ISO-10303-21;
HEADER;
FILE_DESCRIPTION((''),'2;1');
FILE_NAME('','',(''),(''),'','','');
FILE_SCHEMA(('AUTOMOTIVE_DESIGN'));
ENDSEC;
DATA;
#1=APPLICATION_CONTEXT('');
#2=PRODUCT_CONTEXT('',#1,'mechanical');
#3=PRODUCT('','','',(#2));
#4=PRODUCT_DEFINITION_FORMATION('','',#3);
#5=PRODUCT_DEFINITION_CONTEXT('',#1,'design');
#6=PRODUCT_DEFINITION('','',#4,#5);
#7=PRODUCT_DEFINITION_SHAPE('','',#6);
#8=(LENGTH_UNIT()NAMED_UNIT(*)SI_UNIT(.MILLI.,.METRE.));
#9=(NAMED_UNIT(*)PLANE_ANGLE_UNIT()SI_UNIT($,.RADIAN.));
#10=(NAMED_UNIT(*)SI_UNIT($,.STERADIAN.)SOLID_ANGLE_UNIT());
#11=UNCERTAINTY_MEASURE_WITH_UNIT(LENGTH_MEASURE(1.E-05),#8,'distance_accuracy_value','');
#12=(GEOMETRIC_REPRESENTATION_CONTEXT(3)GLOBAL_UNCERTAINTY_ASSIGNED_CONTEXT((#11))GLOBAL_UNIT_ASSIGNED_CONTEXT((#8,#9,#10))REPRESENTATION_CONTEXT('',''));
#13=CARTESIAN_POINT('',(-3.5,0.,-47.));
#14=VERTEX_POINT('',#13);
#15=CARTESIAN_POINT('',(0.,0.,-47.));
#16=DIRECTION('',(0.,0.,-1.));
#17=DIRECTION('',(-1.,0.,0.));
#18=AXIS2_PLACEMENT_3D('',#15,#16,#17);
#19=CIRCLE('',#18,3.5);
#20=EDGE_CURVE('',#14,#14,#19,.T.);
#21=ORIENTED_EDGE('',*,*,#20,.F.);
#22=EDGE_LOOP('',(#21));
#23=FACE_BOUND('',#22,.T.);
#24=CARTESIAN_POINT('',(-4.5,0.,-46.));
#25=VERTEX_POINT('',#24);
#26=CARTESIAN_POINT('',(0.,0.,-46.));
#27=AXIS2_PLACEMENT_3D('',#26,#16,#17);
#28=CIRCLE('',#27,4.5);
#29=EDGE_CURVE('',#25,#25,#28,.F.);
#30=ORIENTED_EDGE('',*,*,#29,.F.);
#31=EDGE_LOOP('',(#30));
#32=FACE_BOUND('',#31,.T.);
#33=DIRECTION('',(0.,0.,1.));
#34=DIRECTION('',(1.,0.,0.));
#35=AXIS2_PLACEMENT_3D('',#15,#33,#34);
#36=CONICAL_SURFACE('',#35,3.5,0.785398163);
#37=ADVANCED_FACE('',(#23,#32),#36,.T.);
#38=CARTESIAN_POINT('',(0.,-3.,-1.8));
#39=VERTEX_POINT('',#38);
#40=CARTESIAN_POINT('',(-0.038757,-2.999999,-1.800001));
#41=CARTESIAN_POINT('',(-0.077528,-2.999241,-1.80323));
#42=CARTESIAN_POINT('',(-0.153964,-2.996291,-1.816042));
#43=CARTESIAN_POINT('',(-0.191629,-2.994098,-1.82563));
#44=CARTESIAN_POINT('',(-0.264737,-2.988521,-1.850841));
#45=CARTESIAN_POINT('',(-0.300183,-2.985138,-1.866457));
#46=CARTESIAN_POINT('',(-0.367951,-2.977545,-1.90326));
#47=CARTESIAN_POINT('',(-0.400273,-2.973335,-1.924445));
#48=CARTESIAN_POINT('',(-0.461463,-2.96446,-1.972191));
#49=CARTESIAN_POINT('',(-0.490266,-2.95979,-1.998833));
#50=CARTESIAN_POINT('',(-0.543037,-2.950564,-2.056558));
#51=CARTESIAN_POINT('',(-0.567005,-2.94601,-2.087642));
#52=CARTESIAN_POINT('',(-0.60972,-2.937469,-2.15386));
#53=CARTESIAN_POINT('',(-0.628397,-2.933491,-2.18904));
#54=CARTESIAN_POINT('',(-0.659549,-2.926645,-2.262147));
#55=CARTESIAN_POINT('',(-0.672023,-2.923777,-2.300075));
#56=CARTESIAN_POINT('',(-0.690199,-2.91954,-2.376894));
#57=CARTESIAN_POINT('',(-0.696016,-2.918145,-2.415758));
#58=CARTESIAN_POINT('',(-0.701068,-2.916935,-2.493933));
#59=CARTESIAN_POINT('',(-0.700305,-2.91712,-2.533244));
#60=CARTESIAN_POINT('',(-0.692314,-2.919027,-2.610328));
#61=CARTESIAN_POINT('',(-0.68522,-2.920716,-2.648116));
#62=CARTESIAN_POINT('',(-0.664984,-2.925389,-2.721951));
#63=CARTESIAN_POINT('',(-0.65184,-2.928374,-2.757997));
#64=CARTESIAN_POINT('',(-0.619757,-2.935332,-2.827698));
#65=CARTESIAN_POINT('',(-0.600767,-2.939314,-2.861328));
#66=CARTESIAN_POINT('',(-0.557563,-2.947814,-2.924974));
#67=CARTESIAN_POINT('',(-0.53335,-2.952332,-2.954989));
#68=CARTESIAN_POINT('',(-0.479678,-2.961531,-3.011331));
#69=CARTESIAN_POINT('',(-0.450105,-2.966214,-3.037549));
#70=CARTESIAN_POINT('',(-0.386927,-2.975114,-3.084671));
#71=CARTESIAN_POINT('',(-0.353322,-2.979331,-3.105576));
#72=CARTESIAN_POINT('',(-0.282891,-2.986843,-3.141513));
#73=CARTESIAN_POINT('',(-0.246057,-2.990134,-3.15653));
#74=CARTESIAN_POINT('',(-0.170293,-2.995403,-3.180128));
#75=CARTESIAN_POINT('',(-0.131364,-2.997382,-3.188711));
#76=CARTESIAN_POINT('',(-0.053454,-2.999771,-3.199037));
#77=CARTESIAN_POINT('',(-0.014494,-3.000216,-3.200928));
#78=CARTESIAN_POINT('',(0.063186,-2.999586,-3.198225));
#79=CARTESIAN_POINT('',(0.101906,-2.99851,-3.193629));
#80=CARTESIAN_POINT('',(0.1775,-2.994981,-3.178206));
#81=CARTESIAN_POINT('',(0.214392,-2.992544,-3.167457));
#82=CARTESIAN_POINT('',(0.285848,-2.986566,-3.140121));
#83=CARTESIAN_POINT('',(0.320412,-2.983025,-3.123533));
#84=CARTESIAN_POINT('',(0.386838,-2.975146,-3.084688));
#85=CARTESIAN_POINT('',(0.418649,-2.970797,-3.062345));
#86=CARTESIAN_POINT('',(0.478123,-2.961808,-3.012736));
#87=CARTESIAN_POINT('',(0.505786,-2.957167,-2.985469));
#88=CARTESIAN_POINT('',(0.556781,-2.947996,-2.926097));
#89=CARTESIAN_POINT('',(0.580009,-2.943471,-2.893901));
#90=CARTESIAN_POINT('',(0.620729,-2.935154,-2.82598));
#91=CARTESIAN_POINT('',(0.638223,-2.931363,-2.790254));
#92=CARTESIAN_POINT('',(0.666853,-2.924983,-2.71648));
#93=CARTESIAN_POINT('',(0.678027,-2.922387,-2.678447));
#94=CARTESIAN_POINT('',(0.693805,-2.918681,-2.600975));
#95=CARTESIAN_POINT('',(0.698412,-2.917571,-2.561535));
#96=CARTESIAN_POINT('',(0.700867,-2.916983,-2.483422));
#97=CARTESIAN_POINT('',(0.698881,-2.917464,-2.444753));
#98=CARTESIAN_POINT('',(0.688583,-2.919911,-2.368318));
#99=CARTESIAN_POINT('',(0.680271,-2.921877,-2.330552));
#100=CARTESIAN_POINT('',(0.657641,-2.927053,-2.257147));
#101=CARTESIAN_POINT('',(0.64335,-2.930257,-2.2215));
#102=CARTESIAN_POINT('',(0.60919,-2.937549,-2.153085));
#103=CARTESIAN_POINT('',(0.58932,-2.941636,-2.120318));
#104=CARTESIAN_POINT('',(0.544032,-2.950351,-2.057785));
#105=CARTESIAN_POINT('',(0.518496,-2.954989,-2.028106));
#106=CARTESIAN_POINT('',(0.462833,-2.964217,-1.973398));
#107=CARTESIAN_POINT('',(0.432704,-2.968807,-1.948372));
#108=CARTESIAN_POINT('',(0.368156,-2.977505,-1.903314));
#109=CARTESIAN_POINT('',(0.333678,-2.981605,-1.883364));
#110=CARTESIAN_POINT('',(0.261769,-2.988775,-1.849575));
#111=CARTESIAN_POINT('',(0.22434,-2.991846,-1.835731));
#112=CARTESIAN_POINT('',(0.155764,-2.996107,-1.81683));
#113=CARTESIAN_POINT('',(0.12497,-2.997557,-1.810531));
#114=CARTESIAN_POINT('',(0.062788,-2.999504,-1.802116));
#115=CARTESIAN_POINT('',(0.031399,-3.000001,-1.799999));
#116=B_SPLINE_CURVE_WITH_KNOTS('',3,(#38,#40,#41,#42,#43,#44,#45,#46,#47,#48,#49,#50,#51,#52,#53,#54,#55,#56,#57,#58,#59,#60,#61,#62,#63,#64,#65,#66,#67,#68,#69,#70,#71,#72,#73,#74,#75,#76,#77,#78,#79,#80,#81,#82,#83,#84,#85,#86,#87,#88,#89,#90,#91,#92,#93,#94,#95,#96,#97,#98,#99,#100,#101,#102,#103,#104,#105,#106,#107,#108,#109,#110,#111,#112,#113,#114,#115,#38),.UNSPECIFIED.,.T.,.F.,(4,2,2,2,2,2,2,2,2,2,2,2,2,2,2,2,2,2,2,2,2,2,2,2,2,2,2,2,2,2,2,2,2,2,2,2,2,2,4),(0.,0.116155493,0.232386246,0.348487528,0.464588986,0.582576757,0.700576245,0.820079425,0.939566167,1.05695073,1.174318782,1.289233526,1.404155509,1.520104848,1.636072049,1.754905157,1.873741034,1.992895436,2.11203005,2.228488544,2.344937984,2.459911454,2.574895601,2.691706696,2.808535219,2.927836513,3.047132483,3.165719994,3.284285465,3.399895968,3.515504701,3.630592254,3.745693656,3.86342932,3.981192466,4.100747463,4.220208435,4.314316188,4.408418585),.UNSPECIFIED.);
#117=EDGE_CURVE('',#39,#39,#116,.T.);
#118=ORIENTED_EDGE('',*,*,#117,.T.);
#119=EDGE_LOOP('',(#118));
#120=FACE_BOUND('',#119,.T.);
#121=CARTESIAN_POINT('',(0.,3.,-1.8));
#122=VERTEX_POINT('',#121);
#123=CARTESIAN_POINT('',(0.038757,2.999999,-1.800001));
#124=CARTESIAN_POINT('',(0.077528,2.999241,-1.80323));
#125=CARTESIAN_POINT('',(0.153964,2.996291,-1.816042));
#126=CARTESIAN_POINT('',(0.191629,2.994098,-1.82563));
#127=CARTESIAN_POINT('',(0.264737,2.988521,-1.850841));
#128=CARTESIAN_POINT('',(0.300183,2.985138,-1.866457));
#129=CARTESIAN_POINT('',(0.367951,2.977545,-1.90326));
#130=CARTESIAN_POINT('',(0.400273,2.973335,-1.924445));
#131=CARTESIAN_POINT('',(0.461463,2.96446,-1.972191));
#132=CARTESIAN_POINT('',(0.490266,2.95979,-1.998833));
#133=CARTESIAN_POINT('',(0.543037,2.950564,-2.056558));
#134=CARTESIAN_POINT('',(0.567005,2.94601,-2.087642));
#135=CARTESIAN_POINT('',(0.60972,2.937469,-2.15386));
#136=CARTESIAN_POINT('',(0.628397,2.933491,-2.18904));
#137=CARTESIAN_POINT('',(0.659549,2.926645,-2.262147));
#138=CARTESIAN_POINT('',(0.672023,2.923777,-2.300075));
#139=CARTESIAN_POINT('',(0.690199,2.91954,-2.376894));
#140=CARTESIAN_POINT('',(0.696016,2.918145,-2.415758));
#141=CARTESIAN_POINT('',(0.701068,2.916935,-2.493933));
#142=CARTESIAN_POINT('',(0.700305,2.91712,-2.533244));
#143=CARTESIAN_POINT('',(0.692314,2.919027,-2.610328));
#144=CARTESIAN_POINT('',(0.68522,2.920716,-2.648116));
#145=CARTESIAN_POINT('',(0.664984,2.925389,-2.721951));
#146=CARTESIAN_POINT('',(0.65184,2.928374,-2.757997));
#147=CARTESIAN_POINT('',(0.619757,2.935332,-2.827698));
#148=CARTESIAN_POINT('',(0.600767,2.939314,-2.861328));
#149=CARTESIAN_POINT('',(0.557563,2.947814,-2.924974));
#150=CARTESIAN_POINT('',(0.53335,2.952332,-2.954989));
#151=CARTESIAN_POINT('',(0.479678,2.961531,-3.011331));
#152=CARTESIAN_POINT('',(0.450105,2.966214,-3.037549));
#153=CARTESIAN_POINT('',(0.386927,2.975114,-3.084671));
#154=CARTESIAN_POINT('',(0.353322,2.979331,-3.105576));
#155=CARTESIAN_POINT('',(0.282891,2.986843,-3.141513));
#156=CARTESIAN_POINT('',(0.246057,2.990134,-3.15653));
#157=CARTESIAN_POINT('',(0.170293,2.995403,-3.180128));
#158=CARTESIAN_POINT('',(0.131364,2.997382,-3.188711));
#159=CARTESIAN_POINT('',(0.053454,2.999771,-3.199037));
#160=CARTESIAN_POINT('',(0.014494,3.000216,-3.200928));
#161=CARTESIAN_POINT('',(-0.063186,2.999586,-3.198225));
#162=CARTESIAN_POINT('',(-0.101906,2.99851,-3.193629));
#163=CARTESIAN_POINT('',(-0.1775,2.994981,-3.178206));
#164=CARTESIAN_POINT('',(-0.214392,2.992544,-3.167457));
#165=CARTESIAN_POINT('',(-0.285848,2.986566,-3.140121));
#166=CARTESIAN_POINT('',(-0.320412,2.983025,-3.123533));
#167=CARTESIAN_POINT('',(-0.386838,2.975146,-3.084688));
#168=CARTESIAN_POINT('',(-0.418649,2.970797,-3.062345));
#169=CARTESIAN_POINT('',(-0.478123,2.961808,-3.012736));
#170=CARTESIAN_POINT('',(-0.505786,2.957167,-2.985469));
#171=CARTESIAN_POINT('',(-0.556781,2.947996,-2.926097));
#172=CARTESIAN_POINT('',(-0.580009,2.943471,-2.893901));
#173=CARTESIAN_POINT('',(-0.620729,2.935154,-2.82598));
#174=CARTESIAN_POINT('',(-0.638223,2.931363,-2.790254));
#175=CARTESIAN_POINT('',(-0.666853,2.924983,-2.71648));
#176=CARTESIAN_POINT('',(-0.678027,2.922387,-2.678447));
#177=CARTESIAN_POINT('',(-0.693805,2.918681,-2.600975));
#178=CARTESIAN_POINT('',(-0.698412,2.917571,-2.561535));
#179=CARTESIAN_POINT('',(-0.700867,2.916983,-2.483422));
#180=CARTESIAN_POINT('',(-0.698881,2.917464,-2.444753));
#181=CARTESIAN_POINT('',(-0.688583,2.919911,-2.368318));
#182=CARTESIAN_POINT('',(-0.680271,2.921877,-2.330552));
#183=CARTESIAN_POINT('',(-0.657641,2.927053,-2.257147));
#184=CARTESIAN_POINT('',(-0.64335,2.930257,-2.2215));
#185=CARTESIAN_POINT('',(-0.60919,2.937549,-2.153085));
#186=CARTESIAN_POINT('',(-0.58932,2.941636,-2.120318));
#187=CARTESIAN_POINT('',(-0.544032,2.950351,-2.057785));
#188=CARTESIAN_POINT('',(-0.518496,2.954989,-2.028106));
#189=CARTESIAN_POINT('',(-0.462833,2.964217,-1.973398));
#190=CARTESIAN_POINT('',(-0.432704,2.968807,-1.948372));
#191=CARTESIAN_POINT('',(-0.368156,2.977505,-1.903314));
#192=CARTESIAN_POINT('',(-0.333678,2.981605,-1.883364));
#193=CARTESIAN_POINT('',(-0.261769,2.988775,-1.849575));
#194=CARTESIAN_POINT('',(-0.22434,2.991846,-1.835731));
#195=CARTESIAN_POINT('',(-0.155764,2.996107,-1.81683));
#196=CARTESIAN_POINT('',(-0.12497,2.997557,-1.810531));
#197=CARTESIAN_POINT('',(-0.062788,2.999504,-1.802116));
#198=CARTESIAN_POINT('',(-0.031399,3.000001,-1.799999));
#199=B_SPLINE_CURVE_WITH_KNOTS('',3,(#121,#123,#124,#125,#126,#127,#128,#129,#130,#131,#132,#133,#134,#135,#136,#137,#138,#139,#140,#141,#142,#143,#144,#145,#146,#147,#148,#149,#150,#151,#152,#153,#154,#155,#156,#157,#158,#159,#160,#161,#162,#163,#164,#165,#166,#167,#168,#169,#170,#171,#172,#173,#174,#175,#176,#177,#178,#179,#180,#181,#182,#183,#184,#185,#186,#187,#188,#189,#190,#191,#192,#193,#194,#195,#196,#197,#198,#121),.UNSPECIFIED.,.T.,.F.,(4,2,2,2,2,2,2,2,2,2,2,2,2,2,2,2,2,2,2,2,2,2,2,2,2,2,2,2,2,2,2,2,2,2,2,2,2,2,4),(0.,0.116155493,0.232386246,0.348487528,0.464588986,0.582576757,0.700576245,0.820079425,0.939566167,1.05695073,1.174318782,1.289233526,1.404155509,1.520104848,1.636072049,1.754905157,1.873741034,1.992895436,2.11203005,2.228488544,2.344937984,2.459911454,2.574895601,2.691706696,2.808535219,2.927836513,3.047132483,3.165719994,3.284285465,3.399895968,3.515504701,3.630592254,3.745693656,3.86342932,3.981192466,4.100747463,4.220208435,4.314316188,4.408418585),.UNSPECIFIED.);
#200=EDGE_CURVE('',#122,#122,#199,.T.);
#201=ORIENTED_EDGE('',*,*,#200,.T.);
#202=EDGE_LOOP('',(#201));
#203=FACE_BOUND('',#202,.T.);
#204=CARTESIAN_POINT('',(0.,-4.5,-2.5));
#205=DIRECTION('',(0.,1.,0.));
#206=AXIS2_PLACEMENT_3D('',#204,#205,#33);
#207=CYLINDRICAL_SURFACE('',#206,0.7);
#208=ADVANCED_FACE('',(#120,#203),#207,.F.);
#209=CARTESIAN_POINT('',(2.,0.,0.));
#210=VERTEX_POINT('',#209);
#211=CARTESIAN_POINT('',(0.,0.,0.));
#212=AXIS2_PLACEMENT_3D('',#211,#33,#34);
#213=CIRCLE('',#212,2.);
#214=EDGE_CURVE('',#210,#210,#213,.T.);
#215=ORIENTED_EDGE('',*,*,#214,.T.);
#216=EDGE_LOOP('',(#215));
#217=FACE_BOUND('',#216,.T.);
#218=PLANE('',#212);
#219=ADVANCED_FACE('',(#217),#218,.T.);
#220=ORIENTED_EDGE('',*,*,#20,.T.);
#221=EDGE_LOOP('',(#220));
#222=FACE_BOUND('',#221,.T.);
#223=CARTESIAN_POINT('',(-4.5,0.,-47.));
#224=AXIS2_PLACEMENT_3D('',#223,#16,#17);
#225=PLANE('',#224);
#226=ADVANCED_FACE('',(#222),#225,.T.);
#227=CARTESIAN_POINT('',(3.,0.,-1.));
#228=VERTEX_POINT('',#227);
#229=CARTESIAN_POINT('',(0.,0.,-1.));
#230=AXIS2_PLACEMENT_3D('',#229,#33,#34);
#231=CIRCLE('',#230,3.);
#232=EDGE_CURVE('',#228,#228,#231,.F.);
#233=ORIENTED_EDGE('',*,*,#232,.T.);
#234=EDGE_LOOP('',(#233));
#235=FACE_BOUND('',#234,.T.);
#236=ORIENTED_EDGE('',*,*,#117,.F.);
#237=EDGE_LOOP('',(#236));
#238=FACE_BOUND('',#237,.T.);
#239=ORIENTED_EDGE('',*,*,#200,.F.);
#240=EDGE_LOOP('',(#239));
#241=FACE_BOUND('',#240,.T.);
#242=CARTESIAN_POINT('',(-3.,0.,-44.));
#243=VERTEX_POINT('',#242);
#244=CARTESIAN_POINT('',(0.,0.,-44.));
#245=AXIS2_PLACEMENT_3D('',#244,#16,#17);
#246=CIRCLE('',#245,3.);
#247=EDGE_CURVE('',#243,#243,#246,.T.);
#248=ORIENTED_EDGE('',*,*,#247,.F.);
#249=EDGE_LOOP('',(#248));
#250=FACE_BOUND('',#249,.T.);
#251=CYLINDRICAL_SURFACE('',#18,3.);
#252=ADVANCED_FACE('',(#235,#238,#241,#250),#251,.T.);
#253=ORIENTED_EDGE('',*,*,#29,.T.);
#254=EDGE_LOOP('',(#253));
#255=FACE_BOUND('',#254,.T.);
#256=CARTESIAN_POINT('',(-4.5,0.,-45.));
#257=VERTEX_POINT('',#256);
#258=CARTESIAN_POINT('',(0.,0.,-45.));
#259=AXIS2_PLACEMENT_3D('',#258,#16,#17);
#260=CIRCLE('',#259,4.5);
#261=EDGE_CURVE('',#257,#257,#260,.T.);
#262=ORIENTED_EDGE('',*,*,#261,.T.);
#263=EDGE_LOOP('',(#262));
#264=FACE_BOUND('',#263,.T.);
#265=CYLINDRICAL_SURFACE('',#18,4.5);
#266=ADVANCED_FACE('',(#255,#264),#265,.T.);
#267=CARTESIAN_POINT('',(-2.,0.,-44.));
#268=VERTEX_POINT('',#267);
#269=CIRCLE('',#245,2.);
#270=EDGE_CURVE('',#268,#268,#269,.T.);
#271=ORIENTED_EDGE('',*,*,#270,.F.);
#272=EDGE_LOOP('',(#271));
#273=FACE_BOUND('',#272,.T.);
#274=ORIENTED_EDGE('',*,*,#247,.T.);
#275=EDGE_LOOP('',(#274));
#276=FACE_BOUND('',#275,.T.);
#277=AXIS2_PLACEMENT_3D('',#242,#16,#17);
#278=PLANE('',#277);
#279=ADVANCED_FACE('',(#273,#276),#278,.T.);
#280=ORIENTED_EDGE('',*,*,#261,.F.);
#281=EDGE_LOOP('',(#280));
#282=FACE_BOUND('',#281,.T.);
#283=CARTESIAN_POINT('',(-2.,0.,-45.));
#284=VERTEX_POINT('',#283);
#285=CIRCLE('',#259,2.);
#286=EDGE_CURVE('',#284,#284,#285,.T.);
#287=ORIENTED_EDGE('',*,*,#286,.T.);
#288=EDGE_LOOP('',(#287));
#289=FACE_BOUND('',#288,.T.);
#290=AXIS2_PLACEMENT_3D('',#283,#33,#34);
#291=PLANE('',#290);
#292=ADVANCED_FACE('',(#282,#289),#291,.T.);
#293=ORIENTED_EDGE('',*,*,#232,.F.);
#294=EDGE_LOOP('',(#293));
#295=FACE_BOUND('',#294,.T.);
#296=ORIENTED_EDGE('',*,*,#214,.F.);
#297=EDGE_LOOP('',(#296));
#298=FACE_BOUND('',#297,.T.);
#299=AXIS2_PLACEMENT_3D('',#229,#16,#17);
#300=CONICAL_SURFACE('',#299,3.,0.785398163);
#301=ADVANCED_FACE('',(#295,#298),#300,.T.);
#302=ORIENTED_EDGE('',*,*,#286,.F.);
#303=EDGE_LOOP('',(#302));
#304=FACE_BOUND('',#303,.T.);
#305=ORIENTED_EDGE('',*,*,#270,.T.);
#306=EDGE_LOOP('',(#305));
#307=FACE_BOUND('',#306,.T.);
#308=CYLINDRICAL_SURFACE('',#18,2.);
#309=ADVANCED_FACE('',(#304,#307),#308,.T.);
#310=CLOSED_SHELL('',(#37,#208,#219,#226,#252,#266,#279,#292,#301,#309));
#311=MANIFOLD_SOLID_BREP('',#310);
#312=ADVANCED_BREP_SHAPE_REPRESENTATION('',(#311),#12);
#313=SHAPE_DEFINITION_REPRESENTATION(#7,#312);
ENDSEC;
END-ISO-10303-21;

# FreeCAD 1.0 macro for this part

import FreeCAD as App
import Part
import Sketcher
Q = App.Units.Quantity


def edges_at(feature, points):
    """Names of the edges that pass closest to the given points."""
    edges = feature.Shape.Edges
    near = lambda p: min(range(len(edges)), key=lambda i: edges[i].distToShape(Part.Vertex(*p))[0])
    return sorted({f"Edge{near(p) + 1}" for p in points})


def add_polygon(sketch, points):
    """Adds a closed chain of lines whose ends are joined by coincident constraints."""
    first, n = sketch.GeometryCount, len(points)
    for a, b in zip(points, points[1:] + points[:1]):
        sketch.addGeometry(Part.LineSegment(App.Vector(*a, 0), App.Vector(*b, 0)), False)
    for i in range(n):
        sketch.addConstraint(Sketcher.Constraint("Coincident", first + i, 2, first + (i + 1) % n, 1))

doc = App.newDocument("Part")
body = doc.addObject("PartDesign::Body", "Body")

# Sketch on XZ plane
sketch1 = body.newObject("Sketcher::SketchObject", "Sketch")
sketch1.AttachmentSupport = (doc.getObject("XZ_Plane"), [""])
sketch1.MapMode = "FlatFace"
add_polygon(sketch1, [(-3, 0), (0, 0), (0, -47), (-4.5, -47), (-4.5, -45), (-2, -45), (-2, -44), (-3, -44)])  # lines 0-7
sketch1.addConstraint(Sketcher.Constraint("Horizontal", 0))
sketch1.addConstraint(Sketcher.Constraint("Vertical", 1))
sketch1.addConstraint(Sketcher.Constraint("Horizontal", 2))
sketch1.addConstraint(Sketcher.Constraint("Vertical", 3))
sketch1.addConstraint(Sketcher.Constraint("Horizontal", 4))
sketch1.addConstraint(Sketcher.Constraint("Vertical", 5))
sketch1.addConstraint(Sketcher.Constraint("Horizontal", 6))
sketch1.addConstraint(Sketcher.Constraint("Vertical", 7))
sketch1.addConstraint(Sketcher.Constraint("Coincident", 0, 2, -1, 1))
sketch1.addConstraint(Sketcher.Constraint("Equal", 6, 5))
sketch1.addConstraint(Sketcher.Constraint("DistanceX", 0, 1, 0, 2, Q("3 mm")))
sketch1.addConstraint(Sketcher.Constraint("DistanceX", 6, 2, 6, 1, Q("1 mm")))
sketch1.addConstraint(Sketcher.Constraint("DistanceY", 1, 2, 1, 1, Q("47 mm")))
sketch1.addConstraint(Sketcher.Constraint("DistanceY", 3, 1, 3, 2, Q("2 mm")))
sketch1.addConstraint(Sketcher.Constraint("DistanceX", 2, 2, 2, 1, Q("4.5 mm")))
revolution = body.newObject("PartDesign::Revolution", "Revolution")
revolution.Profile = sketch1
revolution.ReferenceAxis = (sketch1, ["V_Axis"])
revolution.Angle = 360

# Sketch on XZ plane
sketch2 = body.newObject("Sketcher::SketchObject", "Sketch001")
sketch2.AttachmentSupport = (doc.getObject("XZ_Plane"), [""])
sketch2.MapMode = "FlatFace"
sketch2.addGeometry(Part.Circle(App.Vector(0, -2.5, 0), App.Vector(0, 0, 1), 0.7), False)
sketch2.addConstraint(Sketcher.Constraint("PointOnObject", 0, 3, -2))
sketch2.addConstraint(Sketcher.Constraint("Diameter", 0, Q("1.4 mm")))
sketch2.addConstraint(Sketcher.Constraint("DistanceY", 0, 3, -1, 1, Q("2.5 mm")))
pocket1 = body.newObject("PartDesign::Pocket", "Pocket")
pocket1.Profile = sketch2
pocket1.Type = "ThroughAll"
pocket1.Midplane = True
doc.recompute()

chamfer = body.newObject("PartDesign::Chamfer", "Chamfer")
chamfer.Base = (pocket1, edges_at(pocket1, [(4.5, 0, -47), (3, 0, 0)]))
chamfer.Size = 1

doc.recompute()
